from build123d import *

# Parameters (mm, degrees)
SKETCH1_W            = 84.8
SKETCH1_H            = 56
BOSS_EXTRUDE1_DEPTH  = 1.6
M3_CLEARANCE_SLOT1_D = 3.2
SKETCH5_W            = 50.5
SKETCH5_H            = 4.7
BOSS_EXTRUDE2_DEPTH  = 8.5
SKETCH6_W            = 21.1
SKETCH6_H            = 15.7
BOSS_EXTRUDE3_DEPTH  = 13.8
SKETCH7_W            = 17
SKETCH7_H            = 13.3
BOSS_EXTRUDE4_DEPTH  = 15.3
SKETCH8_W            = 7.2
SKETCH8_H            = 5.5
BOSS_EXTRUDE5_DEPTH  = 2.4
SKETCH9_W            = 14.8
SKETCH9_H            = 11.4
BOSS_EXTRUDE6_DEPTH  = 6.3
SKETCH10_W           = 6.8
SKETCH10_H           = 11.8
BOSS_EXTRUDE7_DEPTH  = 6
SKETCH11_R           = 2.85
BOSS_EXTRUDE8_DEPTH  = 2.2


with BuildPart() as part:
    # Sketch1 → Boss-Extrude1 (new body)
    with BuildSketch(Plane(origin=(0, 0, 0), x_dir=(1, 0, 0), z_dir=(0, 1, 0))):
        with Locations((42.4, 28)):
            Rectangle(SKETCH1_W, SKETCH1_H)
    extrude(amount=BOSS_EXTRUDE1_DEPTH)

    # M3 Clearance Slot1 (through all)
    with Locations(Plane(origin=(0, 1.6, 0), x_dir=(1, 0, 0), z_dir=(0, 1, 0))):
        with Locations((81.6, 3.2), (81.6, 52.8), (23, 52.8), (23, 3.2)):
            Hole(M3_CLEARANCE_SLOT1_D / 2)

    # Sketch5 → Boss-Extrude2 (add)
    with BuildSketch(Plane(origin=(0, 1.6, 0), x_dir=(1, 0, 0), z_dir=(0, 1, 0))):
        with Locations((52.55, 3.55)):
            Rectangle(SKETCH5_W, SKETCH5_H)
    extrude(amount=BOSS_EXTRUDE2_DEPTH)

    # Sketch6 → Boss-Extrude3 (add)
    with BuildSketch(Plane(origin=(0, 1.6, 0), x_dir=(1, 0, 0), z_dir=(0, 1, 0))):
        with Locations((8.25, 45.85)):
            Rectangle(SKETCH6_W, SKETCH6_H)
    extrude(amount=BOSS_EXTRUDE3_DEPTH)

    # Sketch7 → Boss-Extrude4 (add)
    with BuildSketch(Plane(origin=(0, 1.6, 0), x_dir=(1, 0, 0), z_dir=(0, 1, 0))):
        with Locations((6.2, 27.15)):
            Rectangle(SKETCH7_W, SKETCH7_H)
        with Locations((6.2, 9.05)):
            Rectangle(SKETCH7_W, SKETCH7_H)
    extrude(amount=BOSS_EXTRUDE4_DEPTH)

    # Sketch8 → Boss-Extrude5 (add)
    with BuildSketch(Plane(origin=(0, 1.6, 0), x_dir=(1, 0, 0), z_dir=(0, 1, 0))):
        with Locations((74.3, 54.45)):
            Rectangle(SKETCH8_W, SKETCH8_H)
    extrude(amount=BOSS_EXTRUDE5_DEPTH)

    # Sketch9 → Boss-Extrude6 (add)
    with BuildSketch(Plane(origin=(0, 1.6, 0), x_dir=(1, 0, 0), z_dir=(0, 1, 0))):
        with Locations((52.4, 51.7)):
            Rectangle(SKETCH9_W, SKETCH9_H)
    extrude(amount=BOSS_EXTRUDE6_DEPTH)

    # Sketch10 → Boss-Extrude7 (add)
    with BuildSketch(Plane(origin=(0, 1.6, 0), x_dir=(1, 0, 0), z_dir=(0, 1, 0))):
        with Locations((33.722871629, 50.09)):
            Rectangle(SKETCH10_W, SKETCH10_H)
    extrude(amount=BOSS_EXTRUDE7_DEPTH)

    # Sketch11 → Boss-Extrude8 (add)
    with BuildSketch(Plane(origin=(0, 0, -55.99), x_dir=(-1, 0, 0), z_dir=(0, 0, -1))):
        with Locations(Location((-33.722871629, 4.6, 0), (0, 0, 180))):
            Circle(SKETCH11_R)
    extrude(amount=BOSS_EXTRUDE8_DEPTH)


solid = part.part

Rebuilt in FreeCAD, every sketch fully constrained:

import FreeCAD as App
import Part
import Sketcher
from FreeCAD import Vector


def add_polygon(sketch, points):
    """Adds a closed chain of lines whose ends are joined by coincident constraints."""
    first, n = sketch.GeometryCount, len(points)
    for a, b in zip(points, points[1:] + points[:1]):
        sketch.addGeometry(Part.LineSegment(App.Vector(*a, 0), App.Vector(*b, 0)), False)
    for i in range(n):
        sketch.addConstraint(Sketcher.Constraint("Coincident", first + i, 2, first + (i + 1) % n, 1))

doc = App.newDocument("Part")
body = doc.addObject("PartDesign::Body", "Body")

# Sketch on XZ plane
sketch1 = body.newObject("Sketcher::SketchObject", "Sketch")
sketch1.AttachmentSupport = (doc.getObject("XZ_Plane"), [""])
sketch1.MapMode = "FlatFace"
add_polygon(sketch1, [(0, -56), (0, 0), (85, 0), (85, -56)])  # lines 0-3
sketch1.addConstraint([
    Sketcher.Constraint("Vertical", 0),
    Sketcher.Constraint("Horizontal", 1),
    Sketcher.Constraint("Vertical", 2),
    Sketcher.Constraint("Horizontal", 3),
    Sketcher.Constraint("Coincident", 0, 2, -1, 1),
    Sketcher.Constraint("DistanceY", 0, 1, 0, 2, 56.0),
    Sketcher.Constraint("DistanceX", 1, 1, 1, 2, 84.8),
])
pad1 = body.newObject("PartDesign::Pad", "Pad")
pad1.Profile = sketch1
pad1.Length = 1.6
pad1.Reversed = True

# Sketch on XZ plane
sketch2 = body.newObject("Sketcher::SketchObject", "Sketch001")
sketch2.AttachmentSupport = (doc.getObject("XZ_Plane"), [""])
sketch2.MapMode = "FlatFace"
sketch2.AttachmentOffset = App.Placement(Vector(0, 0, -1.6), App.Rotation())
sketch2.addGeometry([
    Part.Circle(Vector(81.6, -3.2, 0), Vector(0, 0, 1), 1.6),
    Part.Circle(Vector(81.6, -52.8, 0), Vector(0, 0, 1), 1.6),
    Part.Circle(Vector(23, -52.8, 0), Vector(0, 0, 1), 1.6),
    Part.Circle(Vector(23, -3.2, 0), Vector(0, 0, 1), 1.6),
], False)
sketch2.addConstraint([
    Sketcher.Constraint("Equal", 0, 1),
    Sketcher.Constraint("Equal", 1, 2),
    Sketcher.Constraint("Equal", 2, 3),
    Sketcher.Constraint("Horizontal", 1, 3, 2, 3),
    Sketcher.Constraint("Horizontal", 0, 3, 3, 3),
    Sketcher.Constraint("Vertical", 0, 3, 1, 3),
    Sketcher.Constraint("Vertical", 2, 3, 3, 3),
    Sketcher.Constraint("Diameter", 0, 3.2),
    Sketcher.Constraint("DistanceX", -1, 1, 2, 3, 23.0),
    Sketcher.Constraint("DistanceX", -1, 1, 0, 3, 81.6),
    Sketcher.Constraint("DistanceY", 0, 3, -1, 1, 3.2),
    Sketcher.Constraint("DistanceY", 1, 3, -1, 1, 52.8),
])
doc.recompute()
hole = body.newObject("PartDesign::Hole", "Hole")
hole.Profile = sketch2
hole.ThreadType = "None"
hole.Diameter = 3.2
hole.DepthType = "ThroughAll"
hole.Reversed = True

# Sketch on XZ plane
sketch3 = body.newObject("Sketcher::SketchObject", "Sketch002")
sketch3.AttachmentSupport = (doc.getObject("XZ_Plane"), [""])
sketch3.MapMode = "FlatFace"
sketch3.AttachmentOffset = App.Placement(Vector(0, 0, -1.6), App.Rotation())
add_polygon(sketch3, [(27.3, -5.9), (27.3, -1.2), (77.8, -1.2), (77.8, -5.9)])  # lines 0-3
sketch3.addConstraint([
    Sketcher.Constraint("Vertical", 0),
    Sketcher.Constraint("Horizontal", 1),
    Sketcher.Constraint("Vertical", 2),
    Sketcher.Constraint("Horizontal", 3),
    Sketcher.Constraint("DistanceX", 1, 1, 1, 2, 50.5),
    Sketcher.Constraint("DistanceY", 0, 1, 0, 2, 4.7),
    Sketcher.Constraint("DistanceX", -1, 1, 0, 2, 27.3),
    Sketcher.Constraint("DistanceY", 0, 2, -1, 1, 1.2),
])
pad2 = body.newObject("PartDesign::Pad", "Pad001")
pad2.Profile = sketch3
pad2.Length = 8.5
pad2.Reversed = True

# Sketch on XZ plane
sketch4 = body.newObject("Sketcher::SketchObject", "Sketch003")
sketch4.AttachmentSupport = (doc.getObject("XZ_Plane"), [""])
sketch4.MapMode = "FlatFace"
sketch4.AttachmentOffset = App.Placement(Vector(0, 0, -1.6), App.Rotation())
add_polygon(sketch4, [(-2, -54), (-2, -38), (19, -38), (19, -54)])  # lines 0-3
sketch4.addConstraint([
    Sketcher.Constraint("Vertical", 0),
    Sketcher.Constraint("Horizontal", 1),
    Sketcher.Constraint("Vertical", 2),
    Sketcher.Constraint("Horizontal", 3),
    Sketcher.Constraint("DistanceX", 1, 1, 1, 2, 21.1),
    Sketcher.Constraint("DistanceY", 0, 1, 0, 2, 15.7),
    Sketcher.Constraint("DistanceY", 0, 2, -1, 1, 38.0),
    Sketcher.Constraint("DistanceX", 0, 2, -1, 1, 2.3),
])
pad3 = body.newObject("PartDesign::Pad", "Pad002")
pad3.Profile = sketch4
pad3.Length = 13.8
pad3.Reversed = True

# Sketch on XZ plane
sketch5 = body.newObject("Sketcher::SketchObject", "Sketch004")
sketch5.AttachmentSupport = (doc.getObject("XZ_Plane"), [""])
sketch5.MapMode = "FlatFace"
sketch5.AttachmentOffset = App.Placement(Vector(0, 0, -1.6), App.Rotation())
add_polygon(sketch5, [(-2, -34), (-2, -20), (15, -20), (15, -34)])  # lines 0-3
add_polygon(sketch5, [(-2, -16), (-2, -2), (15, -2), (15, -16)])  # lines 4-7
sketch5.addConstraint([
    Sketcher.Constraint("Vertical", 0),
    Sketcher.Constraint("Horizontal", 1),
    Sketcher.Constraint("Vertical", 2),
    Sketcher.Constraint("Horizontal", 3),
    Sketcher.Constraint("Vertical", 4),
    Sketcher.Constraint("Horizontal", 5),
    Sketcher.Constraint("Vertical", 6),
    Sketcher.Constraint("Horizontal", 7),
    Sketcher.Constraint("Vertical", 3, 2, 4, 2),
    Sketcher.Constraint("Vertical", 2, 2, 5, 2),
    Sketcher.Constraint("Equal", 2, 4),
    Sketcher.Constraint("DistanceX", 1, 1, 1, 2, 17.0),
    Sketcher.Constraint("DistanceY", 0, 1, 0, 2, 13.3),
    Sketcher.Constraint("DistanceX", 0, 2, -1, 1, 2.3),
    Sketcher.Constraint("DistanceY", 0, 2, -1, 1, 20.5),
    Sketcher.Constraint("DistanceY", 4, 2, -1, 1, 2.4),
])
pad4 = body.newObject("PartDesign::Pad", "Pad003")
pad4.Profile = sketch5
pad4.Length = 15.3
pad4.Reversed = True

# Sketch on XZ plane
sketch6 = body.newObject("Sketcher::SketchObject", "Sketch005")
sketch6.AttachmentSupport = (doc.getObject("XZ_Plane"), [""])
sketch6.MapMode = "FlatFace"
sketch6.AttachmentOffset = App.Placement(Vector(0, 0, -1.6), App.Rotation())
add_polygon(sketch6, [(71, -57), (71, -52), (78, -52), (78, -57)])  # lines 0-3
sketch6.addConstraint([
    Sketcher.Constraint("Vertical", 0),
    Sketcher.Constraint("Horizontal", 1),
    Sketcher.Constraint("Vertical", 2),
    Sketcher.Constraint("Horizontal", 3),
    Sketcher.Constraint("DistanceX", 1, 1, 1, 2, 7.2),
    Sketcher.Constraint("DistanceY", 0, 1, 0, 2, 5.5),
    Sketcher.Constraint("DistanceX", -1, 1, 0, 2, 70.7),
    Sketcher.Constraint("DistanceY", 0, 2, -1, 1, 51.7),
])
pad5 = body.newObject("PartDesign::Pad", "Pad004")
pad5.Profile = sketch6
pad5.Length = 2.4
pad5.Reversed = True

# Sketch on XZ plane
sketch7 = body.newObject("Sketcher::SketchObject", "Sketch006")
sketch7.AttachmentSupport = (doc.getObject("XZ_Plane"), [""])
sketch7.MapMode = "FlatFace"
sketch7.AttachmentOffset = App.Placement(Vector(0, 0, -1.6), App.Rotation())
add_polygon(sketch7, [(45, -57), (45, -46), (60, -46), (60, -57)])  # lines 0-3
sketch7.addConstraint([
    Sketcher.Constraint("Vertical", 0),
    Sketcher.Constraint("Horizontal", 1),
    Sketcher.Constraint("Vertical", 2),
    Sketcher.Constraint("Horizontal", 3),
    Sketcher.Constraint("DistanceX", 1, 1, 1, 2, 14.8),
    Sketcher.Constraint("DistanceY", 0, 1, 0, 2, 11.4),
    Sketcher.Constraint("DistanceX", -1, 1, 0, 2, 45.0),
    Sketcher.Constraint("DistanceY", 0, 2, -1, 1, 46.0),
])
pad6 = body.newObject("PartDesign::Pad", "Pad005")
pad6.Profile = sketch7
pad6.Length = 6.3
pad6.Reversed = True

# Sketch on XZ plane
sketch8 = body.newObject("Sketcher::SketchObject", "Sketch007")
sketch8.AttachmentSupport = (doc.getObject("XZ_Plane"), [""])
sketch8.MapMode = "FlatFace"
sketch8.AttachmentOffset = App.Placement(Vector(0, 0, -1.6), App.Rotation())
add_polygon(sketch8, [(30, -56), (30, -44), (37, -44), (37, -56)])  # lines 0-3
sketch8.addConstraint([
    Sketcher.Constraint("Vertical", 0),
    Sketcher.Constraint("Horizontal", 1),
    Sketcher.Constraint("Vertical", 2),
    Sketcher.Constraint("Horizontal", 3),
    Sketcher.Constraint("DistanceX", 1, 1, 1, 2, 6.8),
    Sketcher.Constraint("DistanceY", 0, 1, 0, 2, 11.8),
    Sketcher.Constraint("DistanceY", 0, 2, -1, 1, 44.19),
    Sketcher.Constraint("DistanceX", -1, 1, 0, 2, 30.322872),
])
pad7 = body.newObject("PartDesign::Pad", "Pad006")
pad7.Profile = sketch8
pad7.Length = 6
pad7.Reversed = True

# Sketch on XY plane
sketch9 = body.newObject("Sketcher::SketchObject", "Sketch008")
sketch9.AttachmentSupport = (doc.getObject("XY_Plane"), [""])
sketch9.MapMode = "FlatFace"
sketch9.AttachmentOffset = App.Placement(Vector(0, 0, -55.99), App.Rotation())
sketch9.addGeometry(Part.Circle(Vector(33.7, 4.6, 0), Vector(0, 0, 1), 2.9), False)
sketch9.addConstraint([
    Sketcher.Constraint("Diameter", 0, 5.7),
    Sketcher.Constraint("DistanceY", -1, 1, 0, 3, 4.6),
    Sketcher.Constraint("DistanceX", -1, 1, 0, 3, 33.722872),
])
pad8 = body.newObject("PartDesign::Pad", "Pad007")
pad8.Profile = sketch9
pad8.Length = 2.2
pad8.Reversed = True

doc.recompute()
